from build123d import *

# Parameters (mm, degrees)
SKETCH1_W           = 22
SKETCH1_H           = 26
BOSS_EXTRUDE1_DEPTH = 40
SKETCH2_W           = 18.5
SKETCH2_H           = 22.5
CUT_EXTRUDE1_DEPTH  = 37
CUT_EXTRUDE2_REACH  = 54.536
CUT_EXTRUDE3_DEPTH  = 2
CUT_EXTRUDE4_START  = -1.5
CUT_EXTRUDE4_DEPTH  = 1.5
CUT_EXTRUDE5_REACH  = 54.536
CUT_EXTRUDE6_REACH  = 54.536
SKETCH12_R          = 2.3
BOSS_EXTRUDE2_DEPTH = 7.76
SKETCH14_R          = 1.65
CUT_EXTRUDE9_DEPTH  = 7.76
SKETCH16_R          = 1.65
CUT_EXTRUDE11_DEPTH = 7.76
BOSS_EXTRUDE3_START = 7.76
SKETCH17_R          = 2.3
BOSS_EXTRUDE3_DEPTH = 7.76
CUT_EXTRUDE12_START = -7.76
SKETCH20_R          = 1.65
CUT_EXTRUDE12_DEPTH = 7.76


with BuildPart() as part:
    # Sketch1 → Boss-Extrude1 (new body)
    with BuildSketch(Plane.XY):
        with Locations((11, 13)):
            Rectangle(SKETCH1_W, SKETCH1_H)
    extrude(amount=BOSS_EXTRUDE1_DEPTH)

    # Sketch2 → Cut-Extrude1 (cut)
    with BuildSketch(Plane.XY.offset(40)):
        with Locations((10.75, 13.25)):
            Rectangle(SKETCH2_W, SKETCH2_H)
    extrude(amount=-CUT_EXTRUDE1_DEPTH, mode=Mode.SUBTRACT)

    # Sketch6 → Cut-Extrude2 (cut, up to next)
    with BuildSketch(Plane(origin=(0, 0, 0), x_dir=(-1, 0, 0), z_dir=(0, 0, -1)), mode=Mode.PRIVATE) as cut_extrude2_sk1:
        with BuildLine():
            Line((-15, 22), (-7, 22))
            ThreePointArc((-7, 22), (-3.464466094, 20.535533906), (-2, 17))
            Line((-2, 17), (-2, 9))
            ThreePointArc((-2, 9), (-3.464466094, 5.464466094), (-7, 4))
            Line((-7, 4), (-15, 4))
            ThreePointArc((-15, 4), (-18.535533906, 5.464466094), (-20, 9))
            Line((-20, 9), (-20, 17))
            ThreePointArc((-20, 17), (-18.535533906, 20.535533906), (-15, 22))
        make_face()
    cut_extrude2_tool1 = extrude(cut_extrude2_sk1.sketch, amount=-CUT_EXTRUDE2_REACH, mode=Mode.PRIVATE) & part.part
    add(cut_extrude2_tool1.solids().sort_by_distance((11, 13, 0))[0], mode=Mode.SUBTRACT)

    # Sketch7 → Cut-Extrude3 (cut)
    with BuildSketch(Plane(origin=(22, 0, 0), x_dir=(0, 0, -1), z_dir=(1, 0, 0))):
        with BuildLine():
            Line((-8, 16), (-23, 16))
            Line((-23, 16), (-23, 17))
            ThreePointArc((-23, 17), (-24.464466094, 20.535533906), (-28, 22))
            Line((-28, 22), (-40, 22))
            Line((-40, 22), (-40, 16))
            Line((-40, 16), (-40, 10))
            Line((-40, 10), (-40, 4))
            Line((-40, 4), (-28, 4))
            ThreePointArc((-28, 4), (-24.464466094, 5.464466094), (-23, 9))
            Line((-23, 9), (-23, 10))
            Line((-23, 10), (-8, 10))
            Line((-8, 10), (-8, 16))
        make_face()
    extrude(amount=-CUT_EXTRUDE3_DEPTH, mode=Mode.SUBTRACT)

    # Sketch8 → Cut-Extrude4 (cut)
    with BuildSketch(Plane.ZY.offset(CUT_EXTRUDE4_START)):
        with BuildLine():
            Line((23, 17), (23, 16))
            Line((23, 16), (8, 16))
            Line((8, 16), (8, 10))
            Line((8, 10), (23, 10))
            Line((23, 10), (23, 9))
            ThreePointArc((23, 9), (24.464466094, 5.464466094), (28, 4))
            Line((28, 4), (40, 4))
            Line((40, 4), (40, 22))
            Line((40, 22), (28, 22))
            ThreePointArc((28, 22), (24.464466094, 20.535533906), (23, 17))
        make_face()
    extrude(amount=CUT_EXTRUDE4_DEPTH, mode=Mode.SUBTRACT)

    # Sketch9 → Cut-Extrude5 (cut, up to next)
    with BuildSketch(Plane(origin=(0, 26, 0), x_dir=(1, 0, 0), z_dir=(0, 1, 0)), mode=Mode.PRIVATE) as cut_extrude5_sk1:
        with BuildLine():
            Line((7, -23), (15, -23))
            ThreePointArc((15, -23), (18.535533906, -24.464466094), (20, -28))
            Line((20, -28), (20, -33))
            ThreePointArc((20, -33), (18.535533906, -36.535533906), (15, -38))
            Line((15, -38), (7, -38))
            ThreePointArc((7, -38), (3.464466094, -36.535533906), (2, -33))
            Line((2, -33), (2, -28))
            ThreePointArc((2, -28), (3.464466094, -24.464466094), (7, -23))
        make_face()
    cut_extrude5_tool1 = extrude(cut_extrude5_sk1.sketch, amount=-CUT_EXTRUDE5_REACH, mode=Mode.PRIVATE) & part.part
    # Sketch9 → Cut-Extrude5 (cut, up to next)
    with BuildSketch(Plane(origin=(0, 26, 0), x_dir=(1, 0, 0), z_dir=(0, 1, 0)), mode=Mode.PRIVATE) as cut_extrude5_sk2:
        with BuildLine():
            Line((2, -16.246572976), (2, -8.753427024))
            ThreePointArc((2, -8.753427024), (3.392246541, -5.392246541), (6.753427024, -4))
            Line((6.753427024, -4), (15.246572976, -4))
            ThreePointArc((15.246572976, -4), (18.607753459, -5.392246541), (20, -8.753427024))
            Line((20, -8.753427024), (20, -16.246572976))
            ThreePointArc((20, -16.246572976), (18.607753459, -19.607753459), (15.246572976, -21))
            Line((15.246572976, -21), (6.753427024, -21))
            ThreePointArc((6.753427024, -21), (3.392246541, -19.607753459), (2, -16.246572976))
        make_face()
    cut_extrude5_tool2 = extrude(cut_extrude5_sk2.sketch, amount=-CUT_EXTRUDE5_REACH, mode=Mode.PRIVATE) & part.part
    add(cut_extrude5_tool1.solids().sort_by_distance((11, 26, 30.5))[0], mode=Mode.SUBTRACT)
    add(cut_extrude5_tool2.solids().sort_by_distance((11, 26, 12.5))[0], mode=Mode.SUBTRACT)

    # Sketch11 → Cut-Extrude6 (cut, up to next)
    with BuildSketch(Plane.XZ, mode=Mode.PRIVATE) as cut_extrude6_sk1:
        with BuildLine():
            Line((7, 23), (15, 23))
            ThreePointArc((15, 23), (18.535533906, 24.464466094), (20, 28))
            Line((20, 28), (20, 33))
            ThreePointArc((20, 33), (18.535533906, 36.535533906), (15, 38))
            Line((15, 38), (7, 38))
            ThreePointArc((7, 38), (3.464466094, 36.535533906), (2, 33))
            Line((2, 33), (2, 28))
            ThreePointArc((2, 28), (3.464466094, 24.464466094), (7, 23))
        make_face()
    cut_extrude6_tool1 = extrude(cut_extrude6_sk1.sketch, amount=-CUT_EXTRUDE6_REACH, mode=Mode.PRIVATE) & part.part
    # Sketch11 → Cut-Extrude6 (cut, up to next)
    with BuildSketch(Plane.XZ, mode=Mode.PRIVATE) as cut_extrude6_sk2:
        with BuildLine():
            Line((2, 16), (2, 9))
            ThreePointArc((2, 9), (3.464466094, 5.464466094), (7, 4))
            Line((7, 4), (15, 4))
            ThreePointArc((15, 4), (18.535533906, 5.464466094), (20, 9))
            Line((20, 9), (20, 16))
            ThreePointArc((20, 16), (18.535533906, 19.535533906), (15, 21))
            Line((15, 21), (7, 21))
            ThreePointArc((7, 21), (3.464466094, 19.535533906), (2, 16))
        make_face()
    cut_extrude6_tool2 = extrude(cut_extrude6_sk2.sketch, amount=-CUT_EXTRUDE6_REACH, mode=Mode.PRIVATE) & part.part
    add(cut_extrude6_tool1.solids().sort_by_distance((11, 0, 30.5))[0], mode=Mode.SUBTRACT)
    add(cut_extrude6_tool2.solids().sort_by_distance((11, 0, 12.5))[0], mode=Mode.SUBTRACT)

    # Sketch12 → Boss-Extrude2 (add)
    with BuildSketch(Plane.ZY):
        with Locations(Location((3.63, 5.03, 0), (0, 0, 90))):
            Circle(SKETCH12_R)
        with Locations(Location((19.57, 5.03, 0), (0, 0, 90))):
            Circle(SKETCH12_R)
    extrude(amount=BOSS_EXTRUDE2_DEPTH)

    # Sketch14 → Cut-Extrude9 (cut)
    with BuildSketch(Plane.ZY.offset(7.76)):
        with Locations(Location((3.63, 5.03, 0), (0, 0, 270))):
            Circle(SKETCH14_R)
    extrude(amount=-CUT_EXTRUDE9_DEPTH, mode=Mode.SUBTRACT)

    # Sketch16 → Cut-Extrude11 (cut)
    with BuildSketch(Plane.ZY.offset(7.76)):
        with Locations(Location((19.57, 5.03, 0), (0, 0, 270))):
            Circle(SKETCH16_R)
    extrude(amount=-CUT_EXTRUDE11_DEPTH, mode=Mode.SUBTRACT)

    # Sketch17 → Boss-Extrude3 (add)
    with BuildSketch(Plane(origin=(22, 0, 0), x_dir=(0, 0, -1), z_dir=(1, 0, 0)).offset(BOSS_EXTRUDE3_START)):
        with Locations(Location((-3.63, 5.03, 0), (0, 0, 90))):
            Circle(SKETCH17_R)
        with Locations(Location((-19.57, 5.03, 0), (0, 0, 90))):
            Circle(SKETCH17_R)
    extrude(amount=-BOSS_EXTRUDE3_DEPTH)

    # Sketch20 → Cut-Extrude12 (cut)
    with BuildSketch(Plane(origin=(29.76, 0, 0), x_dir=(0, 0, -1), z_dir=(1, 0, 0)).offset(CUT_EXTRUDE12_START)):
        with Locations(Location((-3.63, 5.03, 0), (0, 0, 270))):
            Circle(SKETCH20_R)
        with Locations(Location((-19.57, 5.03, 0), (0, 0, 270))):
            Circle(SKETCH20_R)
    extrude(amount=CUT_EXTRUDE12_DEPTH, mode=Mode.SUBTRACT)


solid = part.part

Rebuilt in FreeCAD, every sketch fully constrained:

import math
import FreeCAD as App
import Part
import Sketcher

doc = App.newDocument("Part")
body = doc.addObject("PartDesign::Body", "Body")

sketch1 = body.newObject("Sketcher::SketchObject", "Sketch")
sketch1.AttachmentSupport = (doc.getObject("XY_Plane"), [""])
sketch1.MapMode = "FlatFace"
sketch1.addGeometry(Part.LineSegment(App.Vector(0, 26, 0), App.Vector(0, 0, 0)), False)
sketch1.addGeometry(Part.LineSegment(App.Vector(0, 0, 0), App.Vector(22, 0, 0)), False)
sketch1.addGeometry(Part.LineSegment(App.Vector(22, 0, 0), App.Vector(22, 26, 0)), False)
sketch1.addGeometry(Part.LineSegment(App.Vector(22, 26, 0), App.Vector(0, 26, 0)), False)
sketch1.addConstraint(Sketcher.Constraint("Coincident", 0, 2, 1, 1))
sketch1.addConstraint(Sketcher.Constraint("Coincident", 1, 2, 2, 1))
sketch1.addConstraint(Sketcher.Constraint("Coincident", 2, 2, 3, 1))
sketch1.addConstraint(Sketcher.Constraint("Coincident", 3, 2, 0, 1))
sketch1.addConstraint(Sketcher.Constraint("Vertical", 0))
sketch1.addConstraint(Sketcher.Constraint("Horizontal", 1))
sketch1.addConstraint(Sketcher.Constraint("Vertical", 2))
sketch1.addConstraint(Sketcher.Constraint("Horizontal", 3))
sketch1.addConstraint(Sketcher.Constraint("Coincident", 0, 2, -1, 1))
sketch1.addConstraint(Sketcher.Constraint("DistanceX", 1, 1, 1, 2, 22.0))
sketch1.addConstraint(Sketcher.Constraint("DistanceY", 0, 2, 0, 1, 26.0))
pad1 = body.newObject("PartDesign::Pad", "Pad")
pad1.Profile = sketch1
pad1.Length = 40

sketch2 = body.newObject("Sketcher::SketchObject", "Sketch001")
sketch2.AttachmentSupport = (doc.getObject("XY_Plane"), [""])
sketch2.MapMode = "FlatFace"
sketch2.AttachmentOffset = App.Placement(App.Vector(0, 0, 40), App.Rotation())
sketch2.addGeometry(Part.LineSegment(App.Vector(2, 24, 0), App.Vector(2, 2, 0)), False)
sketch2.addGeometry(Part.LineSegment(App.Vector(2, 2, 0), App.Vector(20, 2, 0)), False)
sketch2.addGeometry(Part.LineSegment(App.Vector(20, 2, 0), App.Vector(20, 24, 0)), False)
sketch2.addGeometry(Part.LineSegment(App.Vector(20, 24, 0), App.Vector(2, 24, 0)), False)
sketch2.addConstraint(Sketcher.Constraint("Coincident", 0, 2, 1, 1))
sketch2.addConstraint(Sketcher.Constraint("Coincident", 1, 2, 2, 1))
sketch2.addConstraint(Sketcher.Constraint("Coincident", 2, 2, 3, 1))
sketch2.addConstraint(Sketcher.Constraint("Coincident", 3, 2, 0, 1))
sketch2.addConstraint(Sketcher.Constraint("Vertical", 0))
sketch2.addConstraint(Sketcher.Constraint("Horizontal", 1))
sketch2.addConstraint(Sketcher.Constraint("Vertical", 2))
sketch2.addConstraint(Sketcher.Constraint("Horizontal", 3))
sketch2.addConstraint(Sketcher.Constraint("DistanceX", 1, 1, 1, 2, 18.5))
sketch2.addConstraint(Sketcher.Constraint("DistanceY", 0, 2, 0, 1, 22.5))
sketch2.addConstraint(Sketcher.Constraint("DistanceY", -1, 1, 0, 2, 2.0))
sketch2.addConstraint(Sketcher.Constraint("DistanceX", -1, 1, 1, 2, 20.0))
pocket1 = body.newObject("PartDesign::Pocket", "Pocket")
pocket1.Profile = sketch2
pocket1.Length = 37

sketch3 = body.newObject("Sketcher::SketchObject", "Sketch002")
sketch3.AttachmentSupport = (doc.getObject("XY_Plane"), [""])
sketch3.MapMode = "FlatFace"
sketch3.addGeometry(Part.LineSegment(App.Vector(7, 22, 0), App.Vector(15, 22, 0)), False)
sketch3.addGeometry(Part.ArcOfCircle(Part.Circle(App.Vector(15, 17, 0), App.Vector(0, 0, 1), 5), math.radians(0), math.radians(90)), False)
sketch3.addGeometry(Part.LineSegment(App.Vector(20, 17, 0), App.Vector(20, 9, 0)), False)
sketch3.addGeometry(Part.ArcOfCircle(Part.Circle(App.Vector(15, 9, 0), App.Vector(0, 0, 1), 5), math.radians(-90), math.radians(0)), False)
sketch3.addGeometry(Part.LineSegment(App.Vector(15, 4, 0), App.Vector(7, 4, 0)), False)
sketch3.addGeometry(Part.ArcOfCircle(Part.Circle(App.Vector(7, 9, 0), App.Vector(0, 0, 1), 5), math.radians(180), math.radians(270)), False)
sketch3.addGeometry(Part.LineSegment(App.Vector(2, 9, 0), App.Vector(2, 17, 0)), False)
sketch3.addGeometry(Part.ArcOfCircle(Part.Circle(App.Vector(7, 17, 0), App.Vector(0, 0, 1), 5), math.radians(90), math.radians(180)), False)
sketch3.addConstraint(Sketcher.Constraint("Tangent", 0, 2, 1, 2))
sketch3.addConstraint(Sketcher.Constraint("Tangent", 1, 1, 2, 1))
sketch3.addConstraint(Sketcher.Constraint("Tangent", 2, 2, 3, 2))
sketch3.addConstraint(Sketcher.Constraint("Tangent", 3, 1, 4, 1))
sketch3.addConstraint(Sketcher.Constraint("Tangent", 4, 2, 5, 2))
sketch3.addConstraint(Sketcher.Constraint("Tangent", 5, 1, 6, 1))
sketch3.addConstraint(Sketcher.Constraint("Tangent", 6, 2, 7, 2))
sketch3.addConstraint(Sketcher.Constraint("Tangent", 7, 1, 0, 1))
sketch3.addConstraint(Sketcher.Constraint("Horizontal", 0))
sketch3.addConstraint(Sketcher.Constraint("Vertical", 2))
sketch3.addConstraint(Sketcher.Constraint("Horizontal", 4))
sketch3.addConstraint(Sketcher.Constraint("Vertical", 6))
sketch3.addConstraint(Sketcher.Constraint("Equal", 1, 3))
sketch3.addConstraint(Sketcher.Constraint("Equal", 3, 5))
sketch3.addConstraint(Sketcher.Constraint("Equal", 5, 7))
sketch3.addConstraint(Sketcher.Constraint("Equal", 4, 2))
sketch3.addConstraint(Sketcher.Constraint("Radius", 1, 5.0))
sketch3.addConstraint(Sketcher.Constraint("DistanceX", 0, 1, 0, 2, 8.0))
sketch3.addConstraint(Sketcher.Constraint("DistanceX", -1, 1, 1, 3, 15.0))
sketch3.addConstraint(Sketcher.Constraint("DistanceY", -1, 1, 1, 3, 17.0))
pocket2 = body.newObject("PartDesign::Pocket", "Pocket001")
pocket2.Profile = sketch3
pocket2.Type = "UpToFirst"
pocket2.Reversed = True

sketch4 = body.newObject("Sketcher::SketchObject", "Sketch003")
sketch4.AttachmentSupport = (doc.getObject("YZ_Plane"), [""])
sketch4.MapMode = "FlatFace"
sketch4.AttachmentOffset = App.Placement(App.Vector(0, 0, 22), App.Rotation())
sketch4.addGeometry(Part.LineSegment(App.Vector(16, 8, 0), App.Vector(16, 23, 0)), False)
sketch4.addGeometry(Part.LineSegment(App.Vector(16, 23, 0), App.Vector(17, 23, 0)), False)
sketch4.addGeometry(Part.ArcOfCircle(Part.Circle(App.Vector(17, 28, 0), App.Vector(0, 0, 1), 5), math.radians(-90), math.radians(0)), False)
sketch4.addGeometry(Part.LineSegment(App.Vector(22, 28, 0), App.Vector(22, 40, 0)), False)
sketch4.addGeometry(Part.LineSegment(App.Vector(22, 40, 0), App.Vector(4, 40, 0)), False)
sketch4.addGeometry(Part.LineSegment(App.Vector(4, 40, 0), App.Vector(4, 28, 0)), False)
sketch4.addGeometry(Part.ArcOfCircle(Part.Circle(App.Vector(9, 28, 0), App.Vector(0, 0, 1), 5), math.radians(180), math.radians(270)), False)
sketch4.addGeometry(Part.LineSegment(App.Vector(9, 23, 0), App.Vector(10, 23, 0)), False)
sketch4.addGeometry(Part.LineSegment(App.Vector(10, 23, 0), App.Vector(10, 8, 0)), False)
sketch4.addGeometry(Part.LineSegment(App.Vector(10, 8, 0), App.Vector(16, 8, 0)), False)
sketch4.addConstraint(Sketcher.Constraint("Coincident", 0, 2, 1, 1))
sketch4.addConstraint(Sketcher.Constraint("Tangent", 1, 2, 2, 1))
sketch4.addConstraint(Sketcher.Constraint("Tangent", 2, 2, 3, 1))
sketch4.addConstraint(Sketcher.Constraint("Coincident", 3, 2, 4, 1))
sketch4.addConstraint(Sketcher.Constraint("Coincident", 4, 2, 5, 1))
sketch4.addConstraint(Sketcher.Constraint("Tangent", 5, 2, 6, 1))
sketch4.addConstraint(Sketcher.Constraint("Tangent", 6, 2, 7, 1))
sketch4.addConstraint(Sketcher.Constraint("Coincident", 7, 2, 8, 1))
sketch4.addConstraint(Sketcher.Constraint("Coincident", 8, 2, 9, 1))
sketch4.addConstraint(Sketcher.Constraint("Coincident", 9, 2, 0, 1))
sketch4.addConstraint(Sketcher.Constraint("Vertical", 0))
sketch4.addConstraint(Sketcher.Constraint("Horizontal", 1))
sketch4.addConstraint(Sketcher.Constraint("Vertical", 3))
sketch4.addConstraint(Sketcher.Constraint("Horizontal", 4))
sketch4.addConstraint(Sketcher.Constraint("Vertical", 5))
sketch4.addConstraint(Sketcher.Constraint("Horizontal", 7))
sketch4.addConstraint(Sketcher.Constraint("Vertical", 8))
sketch4.addConstraint(Sketcher.Constraint("Horizontal", 9))
sketch4.addConstraint(Sketcher.Constraint("Equal", 2, 6))
sketch4.addConstraint(Sketcher.Constraint("Horizontal", 2, 3, 6, 3))
sketch4.addConstraint(Sketcher.Constraint("Equal", 1, 7))
sketch4.addConstraint(Sketcher.Constraint("Radius", 2, 5.0))
sketch4.addConstraint(Sketcher.Constraint("DistanceX", 1, 1, 1, 2, 1.0))
sketch4.addConstraint(Sketcher.Constraint("DistanceX", 4, 2, 4, 1, 18.0))
sketch4.addConstraint(Sketcher.Constraint("DistanceY", 0, 1, 0, 2, 15.0))
sketch4.addConstraint(Sketcher.Constraint("DistanceY", 3, 1, 3, 2, 12.0))
sketch4.addConstraint(Sketcher.Constraint("DistanceX", -1, 1, 2, 3, 17.0))
sketch4.addConstraint(Sketcher.Constraint("DistanceY", -1, 1, 2, 3, 28.0))
pocket3 = body.newObject("PartDesign::Pocket", "Pocket002")
pocket3.Profile = sketch4
pocket3.Length = 2

sketch5 = body.newObject("Sketcher::SketchObject", "Sketch004")
sketch5.AttachmentSupport = (doc.getObject("YZ_Plane"), [""])
sketch5.MapMode = "FlatFace"
sketch5.AttachmentOffset = App.Placement(App.Vector(0, 0, 1.5), App.Rotation())
sketch5.addGeometry(Part.LineSegment(App.Vector(17, 23, 0), App.Vector(16, 23, 0)), False)
sketch5.addGeometry(Part.LineSegment(App.Vector(16, 23, 0), App.Vector(16, 8, 0)), False)
sketch5.addGeometry(Part.LineSegment(App.Vector(16, 8, 0), App.Vector(10, 8, 0)), False)
sketch5.addGeometry(Part.LineSegment(App.Vector(10, 8, 0), App.Vector(10, 23, 0)), False)
sketch5.addGeometry(Part.LineSegment(App.Vector(10, 23, 0), App.Vector(9, 23, 0)), False)
sketch5.addGeometry(Part.ArcOfCircle(Part.Circle(App.Vector(9, 28, 0), App.Vector(0, 0, 1), 5), math.radians(180), math.radians(270)), False)
sketch5.addGeometry(Part.LineSegment(App.Vector(4, 28, 0), App.Vector(4, 40, 0)), False)
sketch5.addGeometry(Part.LineSegment(App.Vector(4, 40, 0), App.Vector(22, 40, 0)), False)
sketch5.addGeometry(Part.LineSegment(App.Vector(22, 40, 0), App.Vector(22, 28, 0)), False)
sketch5.addGeometry(Part.ArcOfCircle(Part.Circle(App.Vector(17, 28, 0), App.Vector(0, 0, 1), 5), math.radians(-90), math.radians(0)), False)
sketch5.addConstraint(Sketcher.Constraint("Coincident", 0, 2, 1, 1))
sketch5.addConstraint(Sketcher.Constraint("Coincident", 1, 2, 2, 1))
sketch5.addConstraint(Sketcher.Constraint("Coincident", 2, 2, 3, 1))
sketch5.addConstraint(Sketcher.Constraint("Coincident", 3, 2, 4, 1))
sketch5.addConstraint(Sketcher.Constraint("Tangent", 4, 2, 5, 2))
sketch5.addConstraint(Sketcher.Constraint("Tangent", 5, 1, 6, 1))
sketch5.addConstraint(Sketcher.Constraint("Coincident", 6, 2, 7, 1))
sketch5.addConstraint(Sketcher.Constraint("Coincident", 7, 2, 8, 1))
sketch5.addConstraint(Sketcher.Constraint("Tangent", 8, 2, 9, 2))
sketch5.addConstraint(Sketcher.Constraint("Tangent", 9, 1, 0, 1))
sketch5.addConstraint(Sketcher.Constraint("Horizontal", 0))
sketch5.addConstraint(Sketcher.Constraint("Vertical", 1))
sketch5.addConstraint(Sketcher.Constraint("Horizontal", 2))
sketch5.addConstraint(Sketcher.Constraint("Vertical", 3))
sketch5.addConstraint(Sketcher.Constraint("Horizontal", 4))
sketch5.addConstraint(Sketcher.Constraint("Vertical", 6))
sketch5.addConstraint(Sketcher.Constraint("Horizontal", 7))
sketch5.addConstraint(Sketcher.Constraint("Vertical", 8))
sketch5.addConstraint(Sketcher.Constraint("Equal", 5, 9))
sketch5.addConstraint(Sketcher.Constraint("Horizontal", 5, 3, 9, 3))
sketch5.addConstraint(Sketcher.Constraint("Equal", 0, 4))
sketch5.addConstraint(Sketcher.Constraint("Radius", 5, 5.0))
sketch5.addConstraint(Sketcher.Constraint("DistanceX", 0, 2, 0, 1, 1.0))
sketch5.addConstraint(Sketcher.Constraint("DistanceX", 2, 2, 2, 1, 6.0))
sketch5.addConstraint(Sketcher.Constraint("DistanceY", 1, 2, 1, 1, 15.0))
sketch5.addConstraint(Sketcher.Constraint("DistanceY", 6, 1, 6, 2, 12.0))
sketch5.addConstraint(Sketcher.Constraint("DistanceX", -1, 1, 5, 3, 9.0))
sketch5.addConstraint(Sketcher.Constraint("DistanceY", -1, 1, 5, 3, 28.0))
pocket4 = body.newObject("PartDesign::Pocket", "Pocket003")
pocket4.Profile = sketch5
pocket4.Length = 1.5

sketch6 = body.newObject("Sketcher::SketchObject", "Sketch005")
sketch6.AttachmentSupport = (doc.getObject("XZ_Plane"), [""])
sketch6.MapMode = "FlatFace"
sketch6.AttachmentOffset = App.Placement(App.Vector(0, 0, -26), App.Rotation())
sketch6.addGeometry(Part.LineSegment(App.Vector(15, 23, 0), App.Vector(7, 23, 0)), False)
sketch6.addGeometry(Part.ArcOfCircle(Part.Circle(App.Vector(7, 28, 0), App.Vector(0, 0, 1), 5), math.radians(180), math.radians(270)), False)
sketch6.addGeometry(Part.LineSegment(App.Vector(2, 28, 0), App.Vector(2, 33, 0)), False)
sketch6.addGeometry(Part.ArcOfCircle(Part.Circle(App.Vector(7, 33, 0), App.Vector(0, 0, 1), 5), math.radians(90), math.radians(180)), False)
sketch6.addGeometry(Part.LineSegment(App.Vector(7, 38, 0), App.Vector(15, 38, 0)), False)
sketch6.addGeometry(Part.ArcOfCircle(Part.Circle(App.Vector(15, 33, 0), App.Vector(0, 0, 1), 5), math.radians(0), math.radians(90)), False)
sketch6.addGeometry(Part.LineSegment(App.Vector(20, 33, 0), App.Vector(20, 28, 0)), False)
sketch6.addGeometry(Part.ArcOfCircle(Part.Circle(App.Vector(15, 28, 0), App.Vector(0, 0, 1), 5), math.radians(-90), math.radians(0)), False)
sketch6.addConstraint(Sketcher.Constraint("Tangent", 0, 2, 1, 2))
sketch6.addConstraint(Sketcher.Constraint("Tangent", 1, 1, 2, 1))
sketch6.addConstraint(Sketcher.Constraint("Tangent", 2, 2, 3, 2))
sketch6.addConstraint(Sketcher.Constraint("Tangent", 3, 1, 4, 1))
sketch6.addConstraint(Sketcher.Constraint("Tangent", 4, 2, 5, 2))
sketch6.addConstraint(Sketcher.Constraint("Tangent", 5, 1, 6, 1))
sketch6.addConstraint(Sketcher.Constraint("Tangent", 6, 2, 7, 2))
sketch6.addConstraint(Sketcher.Constraint("Tangent", 7, 1, 0, 1))
sketch6.addConstraint(Sketcher.Constraint("Horizontal", 0))
sketch6.addConstraint(Sketcher.Constraint("Vertical", 2))
sketch6.addConstraint(Sketcher.Constraint("Horizontal", 4))
sketch6.addConstraint(Sketcher.Constraint("Vertical", 6))
sketch6.addConstraint(Sketcher.Constraint("Equal", 1, 3))
sketch6.addConstraint(Sketcher.Constraint("Equal", 3, 5))
sketch6.addConstraint(Sketcher.Constraint("Equal", 5, 7))
sketch6.addConstraint(Sketcher.Constraint("Radius", 1, 5.0))
sketch6.addConstraint(Sketcher.Constraint("DistanceX", 0, 2, 0, 1, 8.0))
sketch6.addConstraint(Sketcher.Constraint("DistanceY", 2, 1, 2, 2, 5.0))
sketch6.addConstraint(Sketcher.Constraint("DistanceX", -1, 1, 1, 3, 7.0))
sketch6.addConstraint(Sketcher.Constraint("DistanceY", -1, 1, 1, 3, 28.0))
pocket5 = body.newObject("PartDesign::Pocket", "Pocket004")
pocket5.Profile = sketch6
pocket5.Type = "UpToFirst"
pocket5.Reversed = True

sketch7 = body.newObject("Sketcher::SketchObject", "Sketch006")
sketch7.AttachmentSupport = (doc.getObject("XZ_Plane"), [""])
sketch7.MapMode = "FlatFace"
sketch7.AttachmentOffset = App.Placement(App.Vector(0, 0, -26), App.Rotation())
sketch7.addGeometry(Part.LineSegment(App.Vector(2, 8.8, 0), App.Vector(2, 16.2, 0)), False)
sketch7.addGeometry(Part.ArcOfCircle(Part.Circle(App.Vector(6.8, 16.2, 0), App.Vector(0, 0, 1), 4.8), math.radians(90), math.radians(180)), False)
sketch7.addGeometry(Part.LineSegment(App.Vector(6.8, 21, 0), App.Vector(15.2, 21, 0)), False)
sketch7.addGeometry(Part.ArcOfCircle(Part.Circle(App.Vector(15.2, 16.2, 0), App.Vector(0, 0, 1), 4.8), math.radians(0), math.radians(90)), False)
sketch7.addGeometry(Part.LineSegment(App.Vector(20, 16.2, 0), App.Vector(20, 8.8, 0)), False)
sketch7.addGeometry(Part.ArcOfCircle(Part.Circle(App.Vector(15.2, 8.8, 0), App.Vector(0, 0, 1), 4.8), math.radians(-90), math.radians(0)), False)
sketch7.addGeometry(Part.LineSegment(App.Vector(15.2, 4, 0), App.Vector(6.8, 4, 0)), False)
sketch7.addGeometry(Part.ArcOfCircle(Part.Circle(App.Vector(6.8, 8.8, 0), App.Vector(0, 0, 1), 4.8), math.radians(180), math.radians(270)), False)
sketch7.addConstraint(Sketcher.Constraint("Tangent", 0, 2, 1, 2))
sketch7.addConstraint(Sketcher.Constraint("Tangent", 1, 1, 2, 1))
sketch7.addConstraint(Sketcher.Constraint("Tangent", 2, 2, 3, 2))
sketch7.addConstraint(Sketcher.Constraint("Tangent", 3, 1, 4, 1))
sketch7.addConstraint(Sketcher.Constraint("Tangent", 4, 2, 5, 2))
sketch7.addConstraint(Sketcher.Constraint("Tangent", 5, 1, 6, 1))
sketch7.addConstraint(Sketcher.Constraint("Tangent", 6, 2, 7, 2))
sketch7.addConstraint(Sketcher.Constraint("Tangent", 7, 1, 0, 1))
sketch7.addConstraint(Sketcher.Constraint("Vertical", 0))
sketch7.addConstraint(Sketcher.Constraint("Horizontal", 2))
sketch7.addConstraint(Sketcher.Constraint("Vertical", 4))
sketch7.addConstraint(Sketcher.Constraint("Horizontal", 6))
sketch7.addConstraint(Sketcher.Constraint("Equal", 1, 3))
sketch7.addConstraint(Sketcher.Constraint("Equal", 3, 5))
sketch7.addConstraint(Sketcher.Constraint("Equal", 5, 7))
sketch7.addConstraint(Sketcher.Constraint("DistanceX", -1, 1, 0, 2, 2.0))
sketch7.addConstraint(Sketcher.Constraint("DistanceY", -1, 1, 1, 1, 21.0))
sketch7.addConstraint(Sketcher.Constraint("DistanceX", -1, 1, 3, 1, 20.0))
sketch7.addConstraint(Sketcher.Constraint("DistanceY", -1, 1, 5, 1, 4.0))
sketch7.addConstraint(Sketcher.Constraint("Radius", 1, 4.753427))
pocket6 = body.newObject("PartDesign::Pocket", "Pocket005")
pocket6.Profile = sketch7
pocket6.Type = "UpToFirst"
pocket6.Reversed = True

sketch8 = body.newObject("Sketcher::SketchObject", "Sketch007")
sketch8.AttachmentSupport = (doc.getObject("XZ_Plane"), [""])
sketch8.MapMode = "FlatFace"
sketch8.addGeometry(Part.LineSegment(App.Vector(7, 23, 0), App.Vector(15, 23, 0)), False)
sketch8.addGeometry(Part.ArcOfCircle(Part.Circle(App.Vector(15, 28, 0), App.Vector(0, 0, 1), 5), math.radians(-90), math.radians(0)), False)
sketch8.addGeometry(Part.LineSegment(App.Vector(20, 28, 0), App.Vector(20, 33, 0)), False)
sketch8.addGeometry(Part.ArcOfCircle(Part.Circle(App.Vector(15, 33, 0), App.Vector(0, 0, 1), 5), math.radians(0), math.radians(90)), False)
sketch8.addGeometry(Part.LineSegment(App.Vector(15, 38, 0), App.Vector(7, 38, 0)), False)
sketch8.addGeometry(Part.ArcOfCircle(Part.Circle(App.Vector(7, 33, 0), App.Vector(0, 0, 1), 5), math.radians(90), math.radians(180)), False)
sketch8.addGeometry(Part.LineSegment(App.Vector(2, 33, 0), App.Vector(2, 28, 0)), False)
sketch8.addGeometry(Part.ArcOfCircle(Part.Circle(App.Vector(7, 28, 0), App.Vector(0, 0, 1), 5), math.radians(180), math.radians(270)), False)
sketch8.addConstraint(Sketcher.Constraint("Tangent", 0, 2, 1, 1))
sketch8.addConstraint(Sketcher.Constraint("Tangent", 1, 2, 2, 1))
sketch8.addConstraint(Sketcher.Constraint("Tangent", 2, 2, 3, 1))
sketch8.addConstraint(Sketcher.Constraint("Tangent", 3, 2, 4, 1))
sketch8.addConstraint(Sketcher.Constraint("Tangent", 4, 2, 5, 1))
sketch8.addConstraint(Sketcher.Constraint("Tangent", 5, 2, 6, 1))
sketch8.addConstraint(Sketcher.Constraint("Tangent", 6, 2, 7, 1))
sketch8.addConstraint(Sketcher.Constraint("Tangent", 7, 2, 0, 1))
sketch8.addConstraint(Sketcher.Constraint("Horizontal", 0))
sketch8.addConstraint(Sketcher.Constraint("Vertical", 2))
sketch8.addConstraint(Sketcher.Constraint("Horizontal", 4))
sketch8.addConstraint(Sketcher.Constraint("Vertical", 6))
sketch8.addConstraint(Sketcher.Constraint("Equal", 1, 3))
sketch8.addConstraint(Sketcher.Constraint("Equal", 3, 5))
sketch8.addConstraint(Sketcher.Constraint("Equal", 5, 7))
sketch8.addConstraint(Sketcher.Constraint("Radius", 1, 5.0))
sketch8.addConstraint(Sketcher.Constraint("DistanceX", 0, 1, 0, 2, 8.0))
sketch8.addConstraint(Sketcher.Constraint("DistanceY", 2, 1, 2, 2, 5.0))
sketch8.addConstraint(Sketcher.Constraint("DistanceX", -1, 1, 1, 3, 15.0))
sketch8.addConstraint(Sketcher.Constraint("DistanceY", -1, 1, 1, 3, 28.0))
pocket7 = body.newObject("PartDesign::Pocket", "Pocket006")
pocket7.Profile = sketch8
pocket7.Type = "UpToFirst"

sketch9 = body.newObject("Sketcher::SketchObject", "Sketch008")
sketch9.AttachmentSupport = (doc.getObject("XZ_Plane"), [""])
sketch9.MapMode = "FlatFace"
sketch9.addGeometry(Part.LineSegment(App.Vector(2, 16, 0), App.Vector(2, 9, 0)), False)
sketch9.addGeometry(Part.ArcOfCircle(Part.Circle(App.Vector(7, 9, 0), App.Vector(0, 0, 1), 5), math.radians(180), math.radians(270)), False)
sketch9.addGeometry(Part.LineSegment(App.Vector(7, 4, 0), App.Vector(15, 4, 0)), False)
sketch9.addGeometry(Part.ArcOfCircle(Part.Circle(App.Vector(15, 9, 0), App.Vector(0, 0, 1), 5), math.radians(-90), math.radians(0)), False)
sketch9.addGeometry(Part.LineSegment(App.Vector(20, 9, 0), App.Vector(20, 16, 0)), False)
sketch9.addGeometry(Part.ArcOfCircle(Part.Circle(App.Vector(15, 16, 0), App.Vector(0, 0, 1), 5), math.radians(0), math.radians(90)), False)
sketch9.addGeometry(Part.LineSegment(App.Vector(15, 21, 0), App.Vector(7, 21, 0)), False)
sketch9.addGeometry(Part.ArcOfCircle(Part.Circle(App.Vector(7, 16, 0), App.Vector(0, 0, 1), 5), math.radians(90), math.radians(180)), False)
sketch9.addConstraint(Sketcher.Constraint("Tangent", 0, 2, 1, 1))
sketch9.addConstraint(Sketcher.Constraint("Tangent", 1, 2, 2, 1))
sketch9.addConstraint(Sketcher.Constraint("Tangent", 2, 2, 3, 1))
sketch9.addConstraint(Sketcher.Constraint("Tangent", 3, 2, 4, 1))
sketch9.addConstraint(Sketcher.Constraint("Tangent", 4, 2, 5, 1))
sketch9.addConstraint(Sketcher.Constraint("Tangent", 5, 2, 6, 1))
sketch9.addConstraint(Sketcher.Constraint("Tangent", 6, 2, 7, 1))
sketch9.addConstraint(Sketcher.Constraint("Tangent", 7, 2, 0, 1))
sketch9.addConstraint(Sketcher.Constraint("Vertical", 0))
sketch9.addConstraint(Sketcher.Constraint("Horizontal", 2))
sketch9.addConstraint(Sketcher.Constraint("Vertical", 4))
sketch9.addConstraint(Sketcher.Constraint("Horizontal", 6))
sketch9.addConstraint(Sketcher.Constraint("Equal", 1, 3))
sketch9.addConstraint(Sketcher.Constraint("Equal", 3, 5))
sketch9.addConstraint(Sketcher.Constraint("Equal", 5, 7))
sketch9.addConstraint(Sketcher.Constraint("Radius", 1, 5.0))
sketch9.addConstraint(Sketcher.Constraint("DistanceX", 2, 1, 2, 2, 8.0))
sketch9.addConstraint(Sketcher.Constraint("DistanceY", 0, 2, 0, 1, 7.0))
sketch9.addConstraint(Sketcher.Constraint("DistanceX", -1, 1, 1, 3, 7.0))
sketch9.addConstraint(Sketcher.Constraint("DistanceY", -1, 1, 1, 3, 9.0))
pocket8 = body.newObject("PartDesign::Pocket", "Pocket007")
pocket8.Profile = sketch9
pocket8.Type = "UpToFirst"

sketch10 = body.newObject("Sketcher::SketchObject", "Sketch009")
sketch10.AttachmentSupport = (doc.getObject("YZ_Plane"), [""])
sketch10.MapMode = "FlatFace"
sketch10.addGeometry(Part.Circle(App.Vector(5, 3.6, 0), App.Vector(0, 0, 1), 2.3), False)
sketch10.addGeometry(Part.Circle(App.Vector(5, 19.6, 0), App.Vector(0, 0, 1), 2.3), False)
sketch10.addConstraint(Sketcher.Constraint("Equal", 0, 1))
sketch10.addConstraint(Sketcher.Constraint("Vertical", 0, 3, 1, 3))
sketch10.addConstraint(Sketcher.Constraint("Diameter", 0, 4.6))
sketch10.addConstraint(Sketcher.Constraint("DistanceX", -1, 1, 0, 3, 5.03))
sketch10.addConstraint(Sketcher.Constraint("DistanceY", -1, 1, 0, 3, 3.63))
sketch10.addConstraint(Sketcher.Constraint("DistanceY", -1, 1, 1, 3, 19.57))
pad2 = body.newObject("PartDesign::Pad", "Pad001")
pad2.Profile = sketch10
pad2.Length = 7.76
pad2.Reversed = True

sketch11 = body.newObject("Sketcher::SketchObject", "Sketch010")
sketch11.AttachmentSupport = (doc.getObject("YZ_Plane"), [""])
sketch11.MapMode = "FlatFace"
sketch11.AttachmentOffset = App.Placement(App.Vector(0, 0, -7.76), App.Rotation())
sketch11.addGeometry(Part.Circle(App.Vector(5, 3.6, 0), App.Vector(0, 0, 1), 1.6), False)
sketch11.addConstraint(Sketcher.Constraint("Diameter", 0, 3.3))
sketch11.addConstraint(Sketcher.Constraint("DistanceX", -1, 1, 0, 3, 5.03))
sketch11.addConstraint(Sketcher.Constraint("DistanceY", -1, 1, 0, 3, 3.63))
pocket9 = body.newObject("PartDesign::Pocket", "Pocket008")
pocket9.Profile = sketch11
pocket9.Length = 7.76
pocket9.Reversed = True

sketch12 = body.newObject("Sketcher::SketchObject", "Sketch011")
sketch12.AttachmentSupport = (doc.getObject("YZ_Plane"), [""])
sketch12.MapMode = "FlatFace"
sketch12.AttachmentOffset = App.Placement(App.Vector(0, 0, -7.76), App.Rotation())
sketch12.addGeometry(Part.Circle(App.Vector(5, 19.6, 0), App.Vector(0, 0, 1), 1.6), False)
sketch12.addConstraint(Sketcher.Constraint("Diameter", 0, 3.3))
sketch12.addConstraint(Sketcher.Constraint("DistanceX", -1, 1, 0, 3, 5.03))
sketch12.addConstraint(Sketcher.Constraint("DistanceY", -1, 1, 0, 3, 19.57))
pocket10 = body.newObject("PartDesign::Pocket", "Pocket009")
pocket10.Profile = sketch12
pocket10.Length = 7.76
pocket10.Reversed = True

sketch13 = body.newObject("Sketcher::SketchObject", "Sketch012")
sketch13.AttachmentSupport = (doc.getObject("YZ_Plane"), [""])
sketch13.MapMode = "FlatFace"
sketch13.AttachmentOffset = App.Placement(App.Vector(0, 0, 29.76), App.Rotation())
sketch13.addGeometry(Part.Circle(App.Vector(5, 3.6, 0), App.Vector(0, 0, 1), 2.3), False)
sketch13.addGeometry(Part.Circle(App.Vector(5, 19.6, 0), App.Vector(0, 0, 1), 2.3), False)
sketch13.addConstraint(Sketcher.Constraint("Equal", 0, 1))
sketch13.addConstraint(Sketcher.Constraint("Vertical", 0, 3, 1, 3))
sketch13.addConstraint(Sketcher.Constraint("Diameter", 0, 4.6))
sketch13.addConstraint(Sketcher.Constraint("DistanceX", -1, 1, 0, 3, 5.03))
sketch13.addConstraint(Sketcher.Constraint("DistanceY", -1, 1, 0, 3, 3.63))
sketch13.addConstraint(Sketcher.Constraint("DistanceY", -1, 1, 1, 3, 19.57))
pad3 = body.newObject("PartDesign::Pad", "Pad002")
pad3.Profile = sketch13
pad3.Length = 7.76
pad3.Reversed = True

sketch14 = body.newObject("Sketcher::SketchObject", "Sketch013")
sketch14.AttachmentSupport = (doc.getObject("YZ_Plane"), [""])
sketch14.MapMode = "FlatFace"
sketch14.AttachmentOffset = App.Placement(App.Vector(0, 0, 22), App.Rotation())
sketch14.addGeometry(Part.Circle(App.Vector(5, 3.6, 0), App.Vector(0, 0, 1), 1.6), False)
sketch14.addGeometry(Part.Circle(App.Vector(5, 19.6, 0), App.Vector(0, 0, 1), 1.6), False)
sketch14.addConstraint(Sketcher.Constraint("Equal", 0, 1))
sketch14.addConstraint(Sketcher.Constraint("Vertical", 0, 3, 1, 3))
sketch14.addConstraint(Sketcher.Constraint("Diameter", 0, 3.3))
sketch14.addConstraint(Sketcher.Constraint("DistanceX", -1, 1, 0, 3, 5.03))
sketch14.addConstraint(Sketcher.Constraint("DistanceY", -1, 1, 0, 3, 3.63))
sketch14.addConstraint(Sketcher.Constraint("DistanceY", -1, 1, 1, 3, 19.57))
pocket11 = body.newObject("PartDesign::Pocket", "Pocket010")
pocket11.Profile = sketch14
pocket11.Length = 7.76
pocket11.Reversed = True

doc.recompute()
